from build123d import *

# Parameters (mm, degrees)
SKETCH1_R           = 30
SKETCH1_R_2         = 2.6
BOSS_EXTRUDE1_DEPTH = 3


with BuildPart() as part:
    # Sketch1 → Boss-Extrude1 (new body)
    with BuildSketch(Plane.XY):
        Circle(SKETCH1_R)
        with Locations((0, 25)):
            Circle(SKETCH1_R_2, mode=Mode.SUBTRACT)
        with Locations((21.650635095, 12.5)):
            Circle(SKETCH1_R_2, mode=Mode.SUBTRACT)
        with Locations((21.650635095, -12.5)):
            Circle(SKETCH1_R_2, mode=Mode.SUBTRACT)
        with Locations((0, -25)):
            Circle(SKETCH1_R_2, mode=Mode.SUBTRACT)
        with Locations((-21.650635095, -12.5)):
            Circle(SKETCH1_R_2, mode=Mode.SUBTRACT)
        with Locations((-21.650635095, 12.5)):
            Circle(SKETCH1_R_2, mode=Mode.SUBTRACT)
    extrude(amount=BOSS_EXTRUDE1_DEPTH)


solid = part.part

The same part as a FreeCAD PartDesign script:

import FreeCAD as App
import Part
import Sketcher
Q = App.Units.Quantity

doc = App.newDocument("Part")
body = doc.addObject("PartDesign::Body", "Body")

# Sketch on XY plane
sketch1 = body.newObject("Sketcher::SketchObject", "Sketch")
sketch1.AttachmentSupport = (doc.getObject("XY_Plane"), [""])
sketch1.MapMode = "FlatFace"
sketch1.addGeometry([
    Part.Circle(App.Vector(0, 0, 0), App.Vector(0, 0, 1), 30),  # 0
    Part.Circle(App.Vector(-21.7, -12.5, 0), App.Vector(0, 0, 1), 2.6),  # 1
    Part.Circle(App.Vector(0, -25, 0), App.Vector(0, 0, 1), 2.6),  # 2
    Part.Circle(App.Vector(21.7, -12.5, 0), App.Vector(0, 0, 1), 2.6),  # 3
    Part.Circle(App.Vector(-21.7, 12.5, 0), App.Vector(0, 0, 1), 2.6),  # 4
    Part.Circle(App.Vector(21.7, 12.5, 0), App.Vector(0, 0, 1), 2.6),  # 5
    Part.Circle(App.Vector(0, 25, 0), App.Vector(0, 0, 1), 2.6),  # 6
], False)
sketch1.addConstraint([
    Sketcher.Constraint("Coincident", 0, 3, -1, 1),
    Sketcher.Constraint("Equal", 1, 2),
    Sketcher.Constraint("Equal", 2, 3),
    Sketcher.Constraint("Equal", 3, 4),
    Sketcher.Constraint("Equal", 4, 5),
    Sketcher.Constraint("Equal", 5, 6),
    Sketcher.Constraint("Symmetric", 3, 3, 4, 3, -1, 1),
    Sketcher.Constraint("Symmetric", 1, 3, 5, 3, -1, 1),
    Sketcher.Constraint("Symmetric", 2, 3, 6, 3, -1, 1),
    Sketcher.Constraint("Symmetric", 1, 3, 3, 3, -2),
    Sketcher.Constraint("PointOnObject", 2, 3, -2),
    Sketcher.Constraint("Diameter", 0, Q("60 mm")),
    Sketcher.Constraint("Diameter", 1, Q("5.2 mm")),
    Sketcher.Constraint("DistanceY", 2, 3, -1, 1, Q("25 mm")),
    Sketcher.Constraint("DistanceY", 1, 3, 4, 3, Q("25 mm")),
    Sketcher.Constraint("DistanceX", 1, 3, 3, 3, Q("43.30127 mm")),
])
pad1 = body.newObject("PartDesign::Pad", "Pad")
pad1.Profile = sketch1
pad1.Length = 3

doc.recompute()
